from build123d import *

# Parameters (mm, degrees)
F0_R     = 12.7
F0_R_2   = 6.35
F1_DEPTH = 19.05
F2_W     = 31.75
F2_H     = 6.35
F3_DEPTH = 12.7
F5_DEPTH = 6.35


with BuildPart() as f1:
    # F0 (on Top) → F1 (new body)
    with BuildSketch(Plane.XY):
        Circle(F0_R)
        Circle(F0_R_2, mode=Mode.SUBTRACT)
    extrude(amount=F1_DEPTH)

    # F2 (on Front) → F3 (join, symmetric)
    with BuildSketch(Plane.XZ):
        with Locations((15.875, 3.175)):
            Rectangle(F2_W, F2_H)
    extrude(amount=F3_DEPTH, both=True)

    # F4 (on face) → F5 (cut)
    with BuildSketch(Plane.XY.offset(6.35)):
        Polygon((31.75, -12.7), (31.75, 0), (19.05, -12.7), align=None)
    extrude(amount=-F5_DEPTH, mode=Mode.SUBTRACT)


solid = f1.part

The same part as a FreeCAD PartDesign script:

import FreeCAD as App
import Part
import Sketcher
from FreeCAD import Vector
Q = App.Units.Quantity

doc = App.newDocument("Part")
body = doc.addObject("PartDesign::Body", "Body")

sketch1 = doc.addObject("Sketcher::SketchObject", "Sketch")
body.addObject(sketch1)
sketch1.AttachmentSupport = (doc.XY_Plane, [""])
sketch1.MapMode = "FlatFace"
sketch1.addGeometry([
    Part.Circle(Vector(0, 0, 0), Vector(0, 0, 1), 13),
    Part.Circle(Vector(0, 0, 0), Vector(0, 0, 1), 6),
], False)
sketch1.addConstraint([
    Sketcher.Constraint("Coincident", 0, 3, -1, 1),
    Sketcher.Constraint("Coincident", 1, 3, -1, 1),
    Sketcher.Constraint("Diameter", 0, Q("1 in")),
    Sketcher.Constraint("Diameter", 1, Q("0.5 in")),
])
pad1 = doc.addObject("PartDesign::Pad", "Pad")
body.addObject(pad1)
pad1.Profile = sketch1
pad1.Length = Q("0.75 in")

sketch2 = doc.addObject("Sketcher::SketchObject", "Sketch001")
body.addObject(sketch2)
sketch2.AttachmentSupport = (doc.XZ_Plane, [""])
sketch2.MapMode = "FlatFace"
sketch2.addGeometry([
    Part.LineSegment(Vector(0, 6, 0), Vector(0, 0, 0)),
    Part.LineSegment(Vector(0, 0, 0), Vector(32, 0, 0)),
    Part.LineSegment(Vector(32, 0, 0), Vector(32, 6, 0)),
    Part.LineSegment(Vector(32, 6, 0), Vector(0, 6, 0)),
], False)
sketch2.addConstraint([
    Sketcher.Constraint("Coincident", 0, 2, 1, 1),
    Sketcher.Constraint("Coincident", 1, 2, 2, 1),
    Sketcher.Constraint("Coincident", 2, 2, 3, 1),
    Sketcher.Constraint("Coincident", 3, 2, 0, 1),
    Sketcher.Constraint("Vertical", 0),
    Sketcher.Constraint("Horizontal", 1),
    Sketcher.Constraint("Vertical", 2),
    Sketcher.Constraint("Horizontal", 3),
    Sketcher.Constraint("Coincident", 0, 2, -1, 1),
    Sketcher.Constraint("DistanceX", 1, 1, 1, 2, Q("1.25 in")),
    Sketcher.Constraint("DistanceY", 0, 2, 0, 1, Q("0.25 in")),
])
pad2 = doc.addObject("PartDesign::Pad", "Pad001")
body.addObject(pad2)
pad2.Profile = sketch2
pad2.Length = Q("1 in")
pad2.Midplane = True

sketch3 = doc.addObject("Sketcher::SketchObject", "Sketch002")
body.addObject(sketch3)
sketch3.AttachmentSupport = (doc.XY_Plane, [""])
sketch3.MapMode = "FlatFace"
sketch3.AttachmentOffset = App.Placement(Vector(0, 0, 0.25 * 25.4), App.Rotation())
sketch3.addGeometry([
    Part.LineSegment(Vector(32, -13, 0), Vector(32, 0, 0)),
    Part.LineSegment(Vector(32, 0, 0), Vector(19, -13, 0)),
    Part.LineSegment(Vector(19, -13, 0), Vector(32, -13, 0)),
], False)
sketch3.addConstraint([
    Sketcher.Constraint("Coincident", 0, 2, 1, 1),
    Sketcher.Constraint("Coincident", 1, 2, 2, 1),
    Sketcher.Constraint("Coincident", 2, 2, 0, 1),
    Sketcher.Constraint("Vertical", 0),
    Sketcher.Constraint("Horizontal", 2),
    Sketcher.Constraint("PointOnObject", 0, 2, -1),
    Sketcher.Constraint("Equal", 2, 0),
    Sketcher.Constraint("DistanceX", 2, 1, 2, 2, Q("0.5 in")),
    Sketcher.Constraint("DistanceX", -1, 1, 0, 2, Q("1.25 in")),
])
pocket1 = doc.addObject("PartDesign::Pocket", "Pocket")
body.addObject(pocket1)
pocket1.Profile = sketch3
pocket1.Length = Q("0.25 in")

doc.recompute()
